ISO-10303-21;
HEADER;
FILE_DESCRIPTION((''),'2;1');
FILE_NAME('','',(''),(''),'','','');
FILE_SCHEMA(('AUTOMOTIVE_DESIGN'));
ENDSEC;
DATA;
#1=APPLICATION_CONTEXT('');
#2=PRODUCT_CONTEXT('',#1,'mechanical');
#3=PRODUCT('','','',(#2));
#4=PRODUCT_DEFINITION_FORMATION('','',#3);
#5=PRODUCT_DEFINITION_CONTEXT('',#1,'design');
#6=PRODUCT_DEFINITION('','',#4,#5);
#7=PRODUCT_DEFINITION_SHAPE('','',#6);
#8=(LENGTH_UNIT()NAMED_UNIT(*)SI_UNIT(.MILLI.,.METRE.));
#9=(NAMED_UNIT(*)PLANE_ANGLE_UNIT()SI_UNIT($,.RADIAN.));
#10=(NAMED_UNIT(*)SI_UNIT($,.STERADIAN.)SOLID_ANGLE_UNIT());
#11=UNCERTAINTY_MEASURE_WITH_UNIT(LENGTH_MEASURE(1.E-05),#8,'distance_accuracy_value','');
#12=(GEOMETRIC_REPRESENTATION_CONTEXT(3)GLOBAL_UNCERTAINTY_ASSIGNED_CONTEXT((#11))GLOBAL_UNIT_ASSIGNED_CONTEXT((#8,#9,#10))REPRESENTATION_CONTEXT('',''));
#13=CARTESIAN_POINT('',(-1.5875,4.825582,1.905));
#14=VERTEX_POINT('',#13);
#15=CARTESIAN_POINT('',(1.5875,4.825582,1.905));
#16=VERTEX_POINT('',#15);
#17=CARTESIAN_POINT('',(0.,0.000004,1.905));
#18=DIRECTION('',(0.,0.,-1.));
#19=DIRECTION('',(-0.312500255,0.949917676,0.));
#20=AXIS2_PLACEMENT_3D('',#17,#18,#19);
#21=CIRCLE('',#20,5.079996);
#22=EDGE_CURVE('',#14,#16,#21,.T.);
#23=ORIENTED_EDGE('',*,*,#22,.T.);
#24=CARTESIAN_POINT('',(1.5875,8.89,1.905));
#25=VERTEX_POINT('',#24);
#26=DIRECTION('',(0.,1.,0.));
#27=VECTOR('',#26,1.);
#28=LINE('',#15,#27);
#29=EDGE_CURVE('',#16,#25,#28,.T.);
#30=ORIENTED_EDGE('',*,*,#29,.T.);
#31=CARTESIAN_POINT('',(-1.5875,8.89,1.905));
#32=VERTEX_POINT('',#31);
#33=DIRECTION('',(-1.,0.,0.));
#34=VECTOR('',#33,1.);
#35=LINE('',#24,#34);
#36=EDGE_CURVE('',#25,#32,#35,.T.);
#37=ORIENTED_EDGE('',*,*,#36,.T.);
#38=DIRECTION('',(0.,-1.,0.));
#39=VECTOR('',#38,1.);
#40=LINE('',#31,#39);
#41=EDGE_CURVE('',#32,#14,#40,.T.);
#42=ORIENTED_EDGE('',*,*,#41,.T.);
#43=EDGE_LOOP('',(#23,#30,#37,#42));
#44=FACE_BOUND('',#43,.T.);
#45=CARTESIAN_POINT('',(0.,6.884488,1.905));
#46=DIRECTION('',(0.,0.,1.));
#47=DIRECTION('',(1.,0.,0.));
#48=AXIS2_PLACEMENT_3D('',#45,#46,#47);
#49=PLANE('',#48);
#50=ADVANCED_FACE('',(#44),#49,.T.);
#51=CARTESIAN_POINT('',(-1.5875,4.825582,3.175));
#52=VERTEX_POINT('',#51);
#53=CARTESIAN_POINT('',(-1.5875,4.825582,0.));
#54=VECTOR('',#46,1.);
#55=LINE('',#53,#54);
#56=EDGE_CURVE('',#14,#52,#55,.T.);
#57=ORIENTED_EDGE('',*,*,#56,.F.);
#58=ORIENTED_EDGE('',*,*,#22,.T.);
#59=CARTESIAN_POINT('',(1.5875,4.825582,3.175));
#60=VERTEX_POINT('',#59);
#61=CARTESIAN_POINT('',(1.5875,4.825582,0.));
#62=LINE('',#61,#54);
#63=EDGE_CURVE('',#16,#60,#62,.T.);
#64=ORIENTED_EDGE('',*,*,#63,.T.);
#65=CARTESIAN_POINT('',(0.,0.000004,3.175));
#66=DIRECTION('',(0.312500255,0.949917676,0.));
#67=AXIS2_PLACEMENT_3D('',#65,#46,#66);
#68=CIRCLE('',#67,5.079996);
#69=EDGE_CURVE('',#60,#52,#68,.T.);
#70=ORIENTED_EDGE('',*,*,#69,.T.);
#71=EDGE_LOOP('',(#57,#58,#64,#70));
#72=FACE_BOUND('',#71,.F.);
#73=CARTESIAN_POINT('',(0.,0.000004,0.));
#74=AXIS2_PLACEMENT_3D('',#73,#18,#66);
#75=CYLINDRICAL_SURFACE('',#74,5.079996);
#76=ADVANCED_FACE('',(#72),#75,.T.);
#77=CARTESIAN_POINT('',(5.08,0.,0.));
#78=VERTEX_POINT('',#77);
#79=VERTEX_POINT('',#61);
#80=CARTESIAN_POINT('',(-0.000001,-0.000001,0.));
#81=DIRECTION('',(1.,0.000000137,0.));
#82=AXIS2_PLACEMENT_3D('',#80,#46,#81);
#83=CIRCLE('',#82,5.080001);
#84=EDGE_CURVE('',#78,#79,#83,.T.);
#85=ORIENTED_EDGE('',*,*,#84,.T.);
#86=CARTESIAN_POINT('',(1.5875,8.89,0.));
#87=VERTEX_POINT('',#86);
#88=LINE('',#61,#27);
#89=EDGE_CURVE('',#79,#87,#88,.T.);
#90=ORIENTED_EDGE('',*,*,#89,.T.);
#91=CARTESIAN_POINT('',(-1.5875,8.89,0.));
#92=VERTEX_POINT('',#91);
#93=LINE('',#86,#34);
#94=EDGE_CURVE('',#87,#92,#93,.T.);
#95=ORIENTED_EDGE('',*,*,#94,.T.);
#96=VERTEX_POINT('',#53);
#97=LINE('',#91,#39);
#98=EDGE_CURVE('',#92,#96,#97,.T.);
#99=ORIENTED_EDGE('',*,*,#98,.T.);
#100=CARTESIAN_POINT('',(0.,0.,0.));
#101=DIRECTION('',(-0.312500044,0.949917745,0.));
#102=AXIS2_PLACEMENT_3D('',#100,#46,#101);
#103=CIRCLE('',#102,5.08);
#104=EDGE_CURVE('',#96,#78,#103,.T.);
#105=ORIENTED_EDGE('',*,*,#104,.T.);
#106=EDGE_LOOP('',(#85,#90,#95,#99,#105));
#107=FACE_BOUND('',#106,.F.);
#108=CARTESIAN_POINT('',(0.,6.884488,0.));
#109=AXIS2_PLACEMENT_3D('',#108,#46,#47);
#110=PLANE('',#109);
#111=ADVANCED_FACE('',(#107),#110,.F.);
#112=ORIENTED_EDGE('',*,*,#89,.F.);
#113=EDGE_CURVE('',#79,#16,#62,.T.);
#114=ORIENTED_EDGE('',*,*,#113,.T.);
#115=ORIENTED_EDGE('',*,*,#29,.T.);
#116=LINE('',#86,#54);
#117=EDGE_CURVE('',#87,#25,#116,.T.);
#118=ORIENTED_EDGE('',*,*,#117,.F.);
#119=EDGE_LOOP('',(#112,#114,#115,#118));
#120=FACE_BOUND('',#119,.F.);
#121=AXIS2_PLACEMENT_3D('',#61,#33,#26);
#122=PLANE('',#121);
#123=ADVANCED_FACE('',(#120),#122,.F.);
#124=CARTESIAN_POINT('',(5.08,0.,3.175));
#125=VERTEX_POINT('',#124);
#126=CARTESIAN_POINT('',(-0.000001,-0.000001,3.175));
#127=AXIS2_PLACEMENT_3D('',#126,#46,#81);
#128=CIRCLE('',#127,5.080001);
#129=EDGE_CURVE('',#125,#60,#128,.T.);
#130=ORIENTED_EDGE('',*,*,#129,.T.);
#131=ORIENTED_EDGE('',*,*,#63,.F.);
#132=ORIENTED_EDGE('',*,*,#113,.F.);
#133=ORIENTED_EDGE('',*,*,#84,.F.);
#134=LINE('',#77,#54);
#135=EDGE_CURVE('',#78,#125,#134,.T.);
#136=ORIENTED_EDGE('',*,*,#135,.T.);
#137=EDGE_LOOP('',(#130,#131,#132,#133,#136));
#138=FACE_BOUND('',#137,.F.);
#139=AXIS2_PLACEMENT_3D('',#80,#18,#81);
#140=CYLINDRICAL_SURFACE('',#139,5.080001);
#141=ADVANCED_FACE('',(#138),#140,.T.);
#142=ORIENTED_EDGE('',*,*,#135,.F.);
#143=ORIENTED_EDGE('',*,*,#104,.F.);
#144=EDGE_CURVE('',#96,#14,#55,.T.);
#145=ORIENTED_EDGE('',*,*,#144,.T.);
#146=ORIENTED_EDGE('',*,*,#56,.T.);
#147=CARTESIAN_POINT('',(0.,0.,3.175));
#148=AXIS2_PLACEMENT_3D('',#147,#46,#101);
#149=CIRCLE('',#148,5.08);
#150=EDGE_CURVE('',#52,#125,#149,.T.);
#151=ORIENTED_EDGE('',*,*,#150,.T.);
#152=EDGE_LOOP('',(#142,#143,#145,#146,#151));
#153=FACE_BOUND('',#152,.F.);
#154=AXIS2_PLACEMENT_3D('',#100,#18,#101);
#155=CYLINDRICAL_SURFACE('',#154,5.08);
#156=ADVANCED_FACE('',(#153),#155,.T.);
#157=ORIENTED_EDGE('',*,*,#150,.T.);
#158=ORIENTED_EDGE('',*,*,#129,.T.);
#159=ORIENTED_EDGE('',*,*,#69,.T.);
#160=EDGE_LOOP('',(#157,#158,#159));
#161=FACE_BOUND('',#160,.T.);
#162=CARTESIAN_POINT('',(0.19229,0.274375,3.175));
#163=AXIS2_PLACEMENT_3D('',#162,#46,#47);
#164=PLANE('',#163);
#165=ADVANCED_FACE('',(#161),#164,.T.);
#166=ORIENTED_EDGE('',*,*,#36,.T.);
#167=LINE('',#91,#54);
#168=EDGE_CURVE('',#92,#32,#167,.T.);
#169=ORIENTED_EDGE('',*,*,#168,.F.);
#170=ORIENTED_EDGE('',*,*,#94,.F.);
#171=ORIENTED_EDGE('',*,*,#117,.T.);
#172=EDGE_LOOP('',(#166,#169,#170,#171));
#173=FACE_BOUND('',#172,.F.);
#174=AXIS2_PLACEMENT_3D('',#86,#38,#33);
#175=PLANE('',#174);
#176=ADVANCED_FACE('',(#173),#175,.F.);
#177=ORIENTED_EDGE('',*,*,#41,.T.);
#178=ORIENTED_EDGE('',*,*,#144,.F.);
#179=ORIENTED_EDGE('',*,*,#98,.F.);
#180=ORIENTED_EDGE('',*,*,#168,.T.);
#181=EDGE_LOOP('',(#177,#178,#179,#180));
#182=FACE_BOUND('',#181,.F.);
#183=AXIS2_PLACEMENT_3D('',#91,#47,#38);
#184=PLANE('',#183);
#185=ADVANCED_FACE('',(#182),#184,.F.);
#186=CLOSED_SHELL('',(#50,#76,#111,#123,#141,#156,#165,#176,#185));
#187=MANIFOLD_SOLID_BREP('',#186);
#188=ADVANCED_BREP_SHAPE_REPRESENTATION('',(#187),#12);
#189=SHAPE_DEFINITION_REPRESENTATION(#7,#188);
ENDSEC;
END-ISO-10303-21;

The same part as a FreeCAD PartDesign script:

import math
import FreeCAD as App
import Part
import Sketcher

V = App.Vector
Q = App.Units.Quantity

doc = App.newDocument("Part")
body = doc.addObject("PartDesign::Body", "Body")

# Sketch on XY plane
sketch1 = body.newObject("Sketcher::SketchObject", "Sketch")
sketch1.AttachmentSupport = (doc.getObject("XY_Plane"), [""])
sketch1.MapMode = "FlatFace"
sketch1.addGeometry([
    Part.ArcOfCircle(Part.Circle(V(0, 0, 0), V(0, 0, 1), 5.1), math.radians(108), math.radians(360)),
    Part.ArcOfCircle(Part.Circle(V(0, 0, 0), V(0, 0, 1), 5.1), math.radians(0), math.radians(72)),
    Part.ArcOfCircle(Part.Circle(V(0, 0, 0), V(0, 0, 1), 5.1), math.radians(72), math.radians(108)),
], False)
sketch1.addConstraint([
    Sketcher.Constraint("Tangent", 0, 2, 1, 1),
    Sketcher.Constraint("Tangent", 1, 2, 2, 1),
    Sketcher.Constraint("Tangent", 2, 2, 0, 1),
    Sketcher.Constraint("Coincident", 0, 3, -1, 1),
    Sketcher.Constraint("PointOnObject", 0, 2, -1),
    Sketcher.Constraint("Horizontal", 1, 2, 2, 2),
    Sketcher.Constraint("Radius", 0, Q("0.2 in")),
    Sketcher.Constraint("DistanceX", -1, 1, 1, 2, Q("0.0625 in")),
])
pad1 = body.newObject("PartDesign::Pad", "Pad")
pad1.Profile = sketch1
pad1.Length = Q("0.125 in")

# Sketch on XY plane
sketch2 = body.newObject("Sketcher::SketchObject", "Sketch001")
sketch2.AttachmentSupport = (doc.getObject("XY_Plane"), [""])
sketch2.MapMode = "FlatFace"
sketch2.addGeometry([
    Part.ArcOfCircle(Part.Circle(V(0, 0, 0), V(0, 0, 1), 5.1), math.radians(72), math.radians(108)),
    Part.LineSegment(V(1.6, 4.8, 0), V(1.6, 8.9, 0)),
    Part.LineSegment(V(1.6, 8.9, 0), V(-1.6, 8.9, 0)),
    Part.LineSegment(V(-1.6, 8.9, 0), V(-1.6, 4.8, 0)),
], False)
sketch2.addConstraint([
    Sketcher.Constraint("Coincident", 0, 1, 1, 1),
    Sketcher.Constraint("Coincident", 1, 2, 2, 1),
    Sketcher.Constraint("Coincident", 2, 2, 3, 1),
    Sketcher.Constraint("Coincident", 3, 2, 0, 2),
    Sketcher.Constraint("Vertical", 1),
    Sketcher.Constraint("Horizontal", 2),
    Sketcher.Constraint("Vertical", 3),
    Sketcher.Constraint("Coincident", 0, 3, -1, 1),
    Sketcher.Constraint("Horizontal", 0, 1, 3, 2),
    Sketcher.Constraint("Radius", 0, Q("0.1999998 in")),
    Sketcher.Constraint("DistanceX", 2, 2, 2, 1, Q("0.125 in")),
    Sketcher.Constraint("DistanceY", -1, 1, 1, 2, Q("0.35 in")),
])
pad2 = body.newObject("PartDesign::Pad", "Pad001")
pad2.Profile = sketch2
pad2.Length = Q("0.075 in")

doc.recompute()
